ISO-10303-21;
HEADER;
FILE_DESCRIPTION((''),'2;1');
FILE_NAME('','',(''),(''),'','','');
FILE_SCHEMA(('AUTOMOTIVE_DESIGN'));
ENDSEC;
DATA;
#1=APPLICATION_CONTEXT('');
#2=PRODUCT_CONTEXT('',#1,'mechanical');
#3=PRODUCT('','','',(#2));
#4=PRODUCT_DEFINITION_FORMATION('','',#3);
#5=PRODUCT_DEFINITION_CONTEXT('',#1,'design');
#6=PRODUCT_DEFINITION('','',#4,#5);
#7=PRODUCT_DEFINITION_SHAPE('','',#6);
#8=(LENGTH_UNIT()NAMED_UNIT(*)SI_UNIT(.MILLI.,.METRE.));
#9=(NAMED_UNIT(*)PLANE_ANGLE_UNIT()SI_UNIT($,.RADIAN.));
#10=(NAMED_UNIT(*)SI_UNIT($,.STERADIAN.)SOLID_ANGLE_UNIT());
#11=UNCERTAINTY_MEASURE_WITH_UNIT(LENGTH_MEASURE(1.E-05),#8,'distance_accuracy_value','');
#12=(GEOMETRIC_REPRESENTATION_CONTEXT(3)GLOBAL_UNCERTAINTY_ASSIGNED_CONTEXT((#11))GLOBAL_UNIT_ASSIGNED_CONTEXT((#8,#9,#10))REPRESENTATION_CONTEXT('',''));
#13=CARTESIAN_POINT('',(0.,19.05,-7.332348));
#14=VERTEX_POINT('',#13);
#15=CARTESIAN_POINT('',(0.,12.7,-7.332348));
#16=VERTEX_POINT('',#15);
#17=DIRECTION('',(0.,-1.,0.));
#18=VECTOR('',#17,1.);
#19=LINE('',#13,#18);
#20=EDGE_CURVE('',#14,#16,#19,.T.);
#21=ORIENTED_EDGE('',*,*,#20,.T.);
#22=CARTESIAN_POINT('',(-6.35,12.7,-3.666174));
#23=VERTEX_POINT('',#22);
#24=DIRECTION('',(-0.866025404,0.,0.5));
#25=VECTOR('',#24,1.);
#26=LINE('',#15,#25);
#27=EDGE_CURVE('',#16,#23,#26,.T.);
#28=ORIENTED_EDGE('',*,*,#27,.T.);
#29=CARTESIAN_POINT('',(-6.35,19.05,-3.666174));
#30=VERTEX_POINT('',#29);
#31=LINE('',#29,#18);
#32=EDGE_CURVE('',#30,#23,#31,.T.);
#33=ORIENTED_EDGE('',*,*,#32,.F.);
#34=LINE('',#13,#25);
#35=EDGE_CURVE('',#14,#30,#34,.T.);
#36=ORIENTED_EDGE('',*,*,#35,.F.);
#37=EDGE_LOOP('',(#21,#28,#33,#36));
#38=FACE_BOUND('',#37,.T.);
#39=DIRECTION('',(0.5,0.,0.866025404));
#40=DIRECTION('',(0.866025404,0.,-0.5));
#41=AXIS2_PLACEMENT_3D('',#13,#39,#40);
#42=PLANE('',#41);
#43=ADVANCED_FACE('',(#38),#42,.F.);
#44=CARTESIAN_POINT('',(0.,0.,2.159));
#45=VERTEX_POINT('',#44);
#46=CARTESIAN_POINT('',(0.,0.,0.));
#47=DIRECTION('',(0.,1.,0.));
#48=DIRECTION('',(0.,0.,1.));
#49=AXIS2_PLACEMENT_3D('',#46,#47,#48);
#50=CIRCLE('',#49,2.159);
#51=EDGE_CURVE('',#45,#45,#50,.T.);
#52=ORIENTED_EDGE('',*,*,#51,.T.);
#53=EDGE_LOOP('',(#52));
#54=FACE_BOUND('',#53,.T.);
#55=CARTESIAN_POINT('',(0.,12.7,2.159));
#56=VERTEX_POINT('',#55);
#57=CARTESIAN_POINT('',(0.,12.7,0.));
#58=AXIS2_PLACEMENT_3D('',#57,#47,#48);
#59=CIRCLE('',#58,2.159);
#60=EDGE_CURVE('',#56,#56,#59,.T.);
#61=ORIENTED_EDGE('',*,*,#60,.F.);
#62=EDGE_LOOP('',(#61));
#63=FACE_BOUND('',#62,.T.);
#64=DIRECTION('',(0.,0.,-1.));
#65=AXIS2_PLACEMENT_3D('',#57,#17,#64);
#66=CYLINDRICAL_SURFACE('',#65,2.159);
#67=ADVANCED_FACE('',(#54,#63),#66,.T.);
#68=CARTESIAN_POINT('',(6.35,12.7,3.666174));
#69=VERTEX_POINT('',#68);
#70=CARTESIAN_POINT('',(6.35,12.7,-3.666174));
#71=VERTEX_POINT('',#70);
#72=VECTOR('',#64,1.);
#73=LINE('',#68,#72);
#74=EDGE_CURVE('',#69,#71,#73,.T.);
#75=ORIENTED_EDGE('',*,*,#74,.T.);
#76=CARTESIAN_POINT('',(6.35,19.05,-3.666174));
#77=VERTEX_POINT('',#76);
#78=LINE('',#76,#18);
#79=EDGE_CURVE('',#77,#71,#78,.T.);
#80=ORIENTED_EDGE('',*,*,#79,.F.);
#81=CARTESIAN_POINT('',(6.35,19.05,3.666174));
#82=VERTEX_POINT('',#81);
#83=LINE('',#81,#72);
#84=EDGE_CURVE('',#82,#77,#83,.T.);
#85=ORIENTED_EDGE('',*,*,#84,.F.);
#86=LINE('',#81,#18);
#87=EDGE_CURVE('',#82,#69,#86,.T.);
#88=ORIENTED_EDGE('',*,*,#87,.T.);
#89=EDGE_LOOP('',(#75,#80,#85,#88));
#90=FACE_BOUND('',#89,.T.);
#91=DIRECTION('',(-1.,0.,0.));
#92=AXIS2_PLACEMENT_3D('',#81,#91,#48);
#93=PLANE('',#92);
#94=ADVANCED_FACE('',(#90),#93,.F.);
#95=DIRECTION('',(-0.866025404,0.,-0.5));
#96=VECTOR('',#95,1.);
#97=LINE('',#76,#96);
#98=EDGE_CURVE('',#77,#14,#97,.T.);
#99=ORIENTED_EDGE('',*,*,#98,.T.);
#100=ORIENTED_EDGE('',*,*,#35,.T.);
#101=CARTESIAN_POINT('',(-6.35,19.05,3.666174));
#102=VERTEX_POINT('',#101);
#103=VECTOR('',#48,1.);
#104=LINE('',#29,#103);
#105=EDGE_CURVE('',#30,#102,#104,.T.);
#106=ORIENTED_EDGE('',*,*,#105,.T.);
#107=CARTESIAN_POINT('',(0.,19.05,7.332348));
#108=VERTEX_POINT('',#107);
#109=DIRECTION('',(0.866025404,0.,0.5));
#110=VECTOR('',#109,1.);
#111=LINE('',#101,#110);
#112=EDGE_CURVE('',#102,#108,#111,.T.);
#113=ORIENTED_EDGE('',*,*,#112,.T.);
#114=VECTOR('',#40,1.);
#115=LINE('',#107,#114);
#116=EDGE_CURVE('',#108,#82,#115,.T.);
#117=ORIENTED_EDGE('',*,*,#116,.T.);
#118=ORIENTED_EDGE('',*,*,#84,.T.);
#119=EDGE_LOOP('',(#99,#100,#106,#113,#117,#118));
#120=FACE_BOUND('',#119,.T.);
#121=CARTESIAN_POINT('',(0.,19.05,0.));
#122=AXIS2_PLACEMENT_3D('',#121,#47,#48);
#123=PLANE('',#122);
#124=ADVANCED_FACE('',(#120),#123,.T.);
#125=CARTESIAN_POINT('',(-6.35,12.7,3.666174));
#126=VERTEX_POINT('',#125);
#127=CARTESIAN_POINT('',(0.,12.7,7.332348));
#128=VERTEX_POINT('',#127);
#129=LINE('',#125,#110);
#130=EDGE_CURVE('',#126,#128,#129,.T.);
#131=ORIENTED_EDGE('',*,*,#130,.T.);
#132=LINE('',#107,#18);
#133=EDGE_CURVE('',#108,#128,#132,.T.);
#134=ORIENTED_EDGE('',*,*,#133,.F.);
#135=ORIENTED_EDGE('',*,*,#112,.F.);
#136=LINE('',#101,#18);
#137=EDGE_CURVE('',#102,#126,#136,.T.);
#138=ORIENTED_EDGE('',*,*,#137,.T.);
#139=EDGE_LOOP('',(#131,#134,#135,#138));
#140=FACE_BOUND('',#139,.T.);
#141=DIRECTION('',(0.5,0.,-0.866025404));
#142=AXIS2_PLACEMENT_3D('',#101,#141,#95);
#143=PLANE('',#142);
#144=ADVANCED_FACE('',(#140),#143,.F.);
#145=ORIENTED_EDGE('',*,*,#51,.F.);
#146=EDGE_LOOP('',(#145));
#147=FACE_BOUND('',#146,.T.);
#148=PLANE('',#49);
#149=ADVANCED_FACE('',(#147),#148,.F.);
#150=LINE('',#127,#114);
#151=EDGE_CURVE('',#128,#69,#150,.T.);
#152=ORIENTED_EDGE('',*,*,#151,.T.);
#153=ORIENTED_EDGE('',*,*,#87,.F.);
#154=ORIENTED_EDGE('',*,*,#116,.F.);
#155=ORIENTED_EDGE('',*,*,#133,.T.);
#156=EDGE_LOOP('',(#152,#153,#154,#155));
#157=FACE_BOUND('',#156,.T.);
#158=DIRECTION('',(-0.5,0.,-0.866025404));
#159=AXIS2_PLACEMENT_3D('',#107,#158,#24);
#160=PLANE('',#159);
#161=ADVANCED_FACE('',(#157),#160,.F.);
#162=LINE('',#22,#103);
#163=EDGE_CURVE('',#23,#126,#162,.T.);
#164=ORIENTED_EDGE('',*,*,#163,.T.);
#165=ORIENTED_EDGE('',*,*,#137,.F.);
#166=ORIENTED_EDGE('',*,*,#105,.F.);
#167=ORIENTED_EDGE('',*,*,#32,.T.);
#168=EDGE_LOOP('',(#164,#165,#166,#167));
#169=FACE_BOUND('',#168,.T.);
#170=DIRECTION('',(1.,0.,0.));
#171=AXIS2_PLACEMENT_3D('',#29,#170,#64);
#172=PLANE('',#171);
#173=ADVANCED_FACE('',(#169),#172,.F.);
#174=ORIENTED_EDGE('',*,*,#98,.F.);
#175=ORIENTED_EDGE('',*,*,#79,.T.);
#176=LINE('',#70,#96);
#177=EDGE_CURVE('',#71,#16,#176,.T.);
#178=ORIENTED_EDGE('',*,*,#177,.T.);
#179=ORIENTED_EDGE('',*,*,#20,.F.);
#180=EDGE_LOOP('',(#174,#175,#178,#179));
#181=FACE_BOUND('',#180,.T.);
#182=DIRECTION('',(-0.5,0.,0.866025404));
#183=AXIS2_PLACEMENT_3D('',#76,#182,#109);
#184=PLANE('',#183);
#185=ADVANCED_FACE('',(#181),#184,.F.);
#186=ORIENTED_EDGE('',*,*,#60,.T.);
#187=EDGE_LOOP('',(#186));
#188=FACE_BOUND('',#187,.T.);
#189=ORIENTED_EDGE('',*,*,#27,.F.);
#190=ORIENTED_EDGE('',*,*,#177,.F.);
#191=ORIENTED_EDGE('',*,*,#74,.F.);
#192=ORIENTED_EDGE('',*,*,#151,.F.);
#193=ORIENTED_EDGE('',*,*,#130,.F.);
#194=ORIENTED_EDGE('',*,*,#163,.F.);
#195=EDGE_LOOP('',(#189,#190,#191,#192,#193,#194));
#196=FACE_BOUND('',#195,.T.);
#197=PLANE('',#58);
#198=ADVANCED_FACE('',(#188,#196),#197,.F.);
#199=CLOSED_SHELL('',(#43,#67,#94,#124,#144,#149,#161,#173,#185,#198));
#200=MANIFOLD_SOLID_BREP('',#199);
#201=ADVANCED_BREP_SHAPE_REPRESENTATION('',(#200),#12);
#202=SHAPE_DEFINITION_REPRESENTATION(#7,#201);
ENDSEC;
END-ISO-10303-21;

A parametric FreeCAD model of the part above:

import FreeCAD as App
import Part
import Sketcher
Q = App.Units.Quantity

doc = App.newDocument("Part")
params = doc.addObject("Spreadsheet::Sheet", "Params")
for row, (alias, value) in enumerate([
    ("sketch1_diameter", "0.17 in"),
    ("pad1_length", "0.5 in"),
    ("pad2_length", "0.25 in"),
], start=1):
    params.set(f"A{row}", alias)
    params.set(f"B{row}", "=" + value)
    params.setAlias(f"B{row}", alias)

body = doc.addObject("PartDesign::Body", "Body")

# Sketch on XZ plane
sketch1 = body.newObject("Sketcher::SketchObject", "Sketch")
sketch1.AttachmentSupport = (doc.getObject("XZ_Plane"), [""])
sketch1.MapMode = "FlatFace"
sketch1.addGeometry(Part.Circle(App.Vector(0, 0, 0), App.Vector(0, 0, 1), 2.2), False)
sketch1.addConstraint(Sketcher.Constraint("Coincident", 0, 3, -1, 1))
sketch1.addConstraint(Sketcher.Constraint("Diameter", 0, Q("0.17 in")))
sketch1.setExpression("Constraints[1]", "Params.sketch1_diameter")
pad1 = body.newObject("PartDesign::Pad", "Pad")
pad1.Profile = sketch1
pad1.setExpression("Length", "Params.pad1_length")
pad1.Reversed = True

# Sketch on XZ plane
sketch2 = body.newObject("Sketcher::SketchObject", "Sketch001")
sketch2.AttachmentSupport = (doc.getObject("XZ_Plane"), [""])
sketch2.MapMode = "FlatFace"
sketch2.AttachmentOffset = App.Placement(App.Vector(0, 0, -0.5 * 25.4), App.Rotation())
sketch2.addGeometry(Part.LineSegment(App.Vector(0, 7, 0), App.Vector(6, 4, 0)), False)
sketch2.addGeometry(Part.LineSegment(App.Vector(6, 4, 0), App.Vector(6, -4, 0)), False)
sketch2.addGeometry(Part.LineSegment(App.Vector(6, -4, 0), App.Vector(0, -7, 0)), False)
sketch2.addGeometry(Part.LineSegment(App.Vector(0, -7, 0), App.Vector(-6, -4, 0)), False)
sketch2.addGeometry(Part.LineSegment(App.Vector(-6, -4, 0), App.Vector(-6, 4, 0)), False)
sketch2.addGeometry(Part.LineSegment(App.Vector(-6, 4, 0), App.Vector(0, 7, 0)), False)
sketch2.addConstraint(Sketcher.Constraint("Coincident", 0, 2, 1, 1))
sketch2.addConstraint(Sketcher.Constraint("Coincident", 1, 2, 2, 1))
sketch2.addConstraint(Sketcher.Constraint("Coincident", 2, 2, 3, 1))
sketch2.addConstraint(Sketcher.Constraint("Coincident", 3, 2, 4, 1))
sketch2.addConstraint(Sketcher.Constraint("Coincident", 4, 2, 5, 1))
sketch2.addConstraint(Sketcher.Constraint("Coincident", 5, 2, 0, 1))
sketch2.addConstraint(Sketcher.Constraint("Vertical", 1))
sketch2.addConstraint(Sketcher.Constraint("Vertical", 4))
sketch2.addConstraint(Sketcher.Constraint("Symmetric", 0, 2, 3, 2, -1, 1))
sketch2.addConstraint(Sketcher.Constraint("Symmetric", 2, 2, 5, 2, -1, 1))
sketch2.addConstraint(Sketcher.Constraint("PointOnObject", 2, 2, -2))
sketch2.addConstraint(Sketcher.Constraint("Parallel", 2, 5))
sketch2.addConstraint(Sketcher.Constraint("Horizontal", 1, 2, 3, 2))
sketch2.addConstraint(Sketcher.Constraint("Angle", 0, Q("-30 deg")))
sketch2.addConstraint(Sketcher.Constraint("DistanceX", 3, 2, 1, 2, Q("0.5 in")))
sketch2.addConstraint(Sketcher.Constraint("DistanceY", 1, 2, 1, 1, 7.332348))
pad2 = body.newObject("PartDesign::Pad", "Pad001")
pad2.Profile = sketch2
pad2.setExpression("Length", "Params.pad2_length")
pad2.Reversed = True

doc.recompute()
